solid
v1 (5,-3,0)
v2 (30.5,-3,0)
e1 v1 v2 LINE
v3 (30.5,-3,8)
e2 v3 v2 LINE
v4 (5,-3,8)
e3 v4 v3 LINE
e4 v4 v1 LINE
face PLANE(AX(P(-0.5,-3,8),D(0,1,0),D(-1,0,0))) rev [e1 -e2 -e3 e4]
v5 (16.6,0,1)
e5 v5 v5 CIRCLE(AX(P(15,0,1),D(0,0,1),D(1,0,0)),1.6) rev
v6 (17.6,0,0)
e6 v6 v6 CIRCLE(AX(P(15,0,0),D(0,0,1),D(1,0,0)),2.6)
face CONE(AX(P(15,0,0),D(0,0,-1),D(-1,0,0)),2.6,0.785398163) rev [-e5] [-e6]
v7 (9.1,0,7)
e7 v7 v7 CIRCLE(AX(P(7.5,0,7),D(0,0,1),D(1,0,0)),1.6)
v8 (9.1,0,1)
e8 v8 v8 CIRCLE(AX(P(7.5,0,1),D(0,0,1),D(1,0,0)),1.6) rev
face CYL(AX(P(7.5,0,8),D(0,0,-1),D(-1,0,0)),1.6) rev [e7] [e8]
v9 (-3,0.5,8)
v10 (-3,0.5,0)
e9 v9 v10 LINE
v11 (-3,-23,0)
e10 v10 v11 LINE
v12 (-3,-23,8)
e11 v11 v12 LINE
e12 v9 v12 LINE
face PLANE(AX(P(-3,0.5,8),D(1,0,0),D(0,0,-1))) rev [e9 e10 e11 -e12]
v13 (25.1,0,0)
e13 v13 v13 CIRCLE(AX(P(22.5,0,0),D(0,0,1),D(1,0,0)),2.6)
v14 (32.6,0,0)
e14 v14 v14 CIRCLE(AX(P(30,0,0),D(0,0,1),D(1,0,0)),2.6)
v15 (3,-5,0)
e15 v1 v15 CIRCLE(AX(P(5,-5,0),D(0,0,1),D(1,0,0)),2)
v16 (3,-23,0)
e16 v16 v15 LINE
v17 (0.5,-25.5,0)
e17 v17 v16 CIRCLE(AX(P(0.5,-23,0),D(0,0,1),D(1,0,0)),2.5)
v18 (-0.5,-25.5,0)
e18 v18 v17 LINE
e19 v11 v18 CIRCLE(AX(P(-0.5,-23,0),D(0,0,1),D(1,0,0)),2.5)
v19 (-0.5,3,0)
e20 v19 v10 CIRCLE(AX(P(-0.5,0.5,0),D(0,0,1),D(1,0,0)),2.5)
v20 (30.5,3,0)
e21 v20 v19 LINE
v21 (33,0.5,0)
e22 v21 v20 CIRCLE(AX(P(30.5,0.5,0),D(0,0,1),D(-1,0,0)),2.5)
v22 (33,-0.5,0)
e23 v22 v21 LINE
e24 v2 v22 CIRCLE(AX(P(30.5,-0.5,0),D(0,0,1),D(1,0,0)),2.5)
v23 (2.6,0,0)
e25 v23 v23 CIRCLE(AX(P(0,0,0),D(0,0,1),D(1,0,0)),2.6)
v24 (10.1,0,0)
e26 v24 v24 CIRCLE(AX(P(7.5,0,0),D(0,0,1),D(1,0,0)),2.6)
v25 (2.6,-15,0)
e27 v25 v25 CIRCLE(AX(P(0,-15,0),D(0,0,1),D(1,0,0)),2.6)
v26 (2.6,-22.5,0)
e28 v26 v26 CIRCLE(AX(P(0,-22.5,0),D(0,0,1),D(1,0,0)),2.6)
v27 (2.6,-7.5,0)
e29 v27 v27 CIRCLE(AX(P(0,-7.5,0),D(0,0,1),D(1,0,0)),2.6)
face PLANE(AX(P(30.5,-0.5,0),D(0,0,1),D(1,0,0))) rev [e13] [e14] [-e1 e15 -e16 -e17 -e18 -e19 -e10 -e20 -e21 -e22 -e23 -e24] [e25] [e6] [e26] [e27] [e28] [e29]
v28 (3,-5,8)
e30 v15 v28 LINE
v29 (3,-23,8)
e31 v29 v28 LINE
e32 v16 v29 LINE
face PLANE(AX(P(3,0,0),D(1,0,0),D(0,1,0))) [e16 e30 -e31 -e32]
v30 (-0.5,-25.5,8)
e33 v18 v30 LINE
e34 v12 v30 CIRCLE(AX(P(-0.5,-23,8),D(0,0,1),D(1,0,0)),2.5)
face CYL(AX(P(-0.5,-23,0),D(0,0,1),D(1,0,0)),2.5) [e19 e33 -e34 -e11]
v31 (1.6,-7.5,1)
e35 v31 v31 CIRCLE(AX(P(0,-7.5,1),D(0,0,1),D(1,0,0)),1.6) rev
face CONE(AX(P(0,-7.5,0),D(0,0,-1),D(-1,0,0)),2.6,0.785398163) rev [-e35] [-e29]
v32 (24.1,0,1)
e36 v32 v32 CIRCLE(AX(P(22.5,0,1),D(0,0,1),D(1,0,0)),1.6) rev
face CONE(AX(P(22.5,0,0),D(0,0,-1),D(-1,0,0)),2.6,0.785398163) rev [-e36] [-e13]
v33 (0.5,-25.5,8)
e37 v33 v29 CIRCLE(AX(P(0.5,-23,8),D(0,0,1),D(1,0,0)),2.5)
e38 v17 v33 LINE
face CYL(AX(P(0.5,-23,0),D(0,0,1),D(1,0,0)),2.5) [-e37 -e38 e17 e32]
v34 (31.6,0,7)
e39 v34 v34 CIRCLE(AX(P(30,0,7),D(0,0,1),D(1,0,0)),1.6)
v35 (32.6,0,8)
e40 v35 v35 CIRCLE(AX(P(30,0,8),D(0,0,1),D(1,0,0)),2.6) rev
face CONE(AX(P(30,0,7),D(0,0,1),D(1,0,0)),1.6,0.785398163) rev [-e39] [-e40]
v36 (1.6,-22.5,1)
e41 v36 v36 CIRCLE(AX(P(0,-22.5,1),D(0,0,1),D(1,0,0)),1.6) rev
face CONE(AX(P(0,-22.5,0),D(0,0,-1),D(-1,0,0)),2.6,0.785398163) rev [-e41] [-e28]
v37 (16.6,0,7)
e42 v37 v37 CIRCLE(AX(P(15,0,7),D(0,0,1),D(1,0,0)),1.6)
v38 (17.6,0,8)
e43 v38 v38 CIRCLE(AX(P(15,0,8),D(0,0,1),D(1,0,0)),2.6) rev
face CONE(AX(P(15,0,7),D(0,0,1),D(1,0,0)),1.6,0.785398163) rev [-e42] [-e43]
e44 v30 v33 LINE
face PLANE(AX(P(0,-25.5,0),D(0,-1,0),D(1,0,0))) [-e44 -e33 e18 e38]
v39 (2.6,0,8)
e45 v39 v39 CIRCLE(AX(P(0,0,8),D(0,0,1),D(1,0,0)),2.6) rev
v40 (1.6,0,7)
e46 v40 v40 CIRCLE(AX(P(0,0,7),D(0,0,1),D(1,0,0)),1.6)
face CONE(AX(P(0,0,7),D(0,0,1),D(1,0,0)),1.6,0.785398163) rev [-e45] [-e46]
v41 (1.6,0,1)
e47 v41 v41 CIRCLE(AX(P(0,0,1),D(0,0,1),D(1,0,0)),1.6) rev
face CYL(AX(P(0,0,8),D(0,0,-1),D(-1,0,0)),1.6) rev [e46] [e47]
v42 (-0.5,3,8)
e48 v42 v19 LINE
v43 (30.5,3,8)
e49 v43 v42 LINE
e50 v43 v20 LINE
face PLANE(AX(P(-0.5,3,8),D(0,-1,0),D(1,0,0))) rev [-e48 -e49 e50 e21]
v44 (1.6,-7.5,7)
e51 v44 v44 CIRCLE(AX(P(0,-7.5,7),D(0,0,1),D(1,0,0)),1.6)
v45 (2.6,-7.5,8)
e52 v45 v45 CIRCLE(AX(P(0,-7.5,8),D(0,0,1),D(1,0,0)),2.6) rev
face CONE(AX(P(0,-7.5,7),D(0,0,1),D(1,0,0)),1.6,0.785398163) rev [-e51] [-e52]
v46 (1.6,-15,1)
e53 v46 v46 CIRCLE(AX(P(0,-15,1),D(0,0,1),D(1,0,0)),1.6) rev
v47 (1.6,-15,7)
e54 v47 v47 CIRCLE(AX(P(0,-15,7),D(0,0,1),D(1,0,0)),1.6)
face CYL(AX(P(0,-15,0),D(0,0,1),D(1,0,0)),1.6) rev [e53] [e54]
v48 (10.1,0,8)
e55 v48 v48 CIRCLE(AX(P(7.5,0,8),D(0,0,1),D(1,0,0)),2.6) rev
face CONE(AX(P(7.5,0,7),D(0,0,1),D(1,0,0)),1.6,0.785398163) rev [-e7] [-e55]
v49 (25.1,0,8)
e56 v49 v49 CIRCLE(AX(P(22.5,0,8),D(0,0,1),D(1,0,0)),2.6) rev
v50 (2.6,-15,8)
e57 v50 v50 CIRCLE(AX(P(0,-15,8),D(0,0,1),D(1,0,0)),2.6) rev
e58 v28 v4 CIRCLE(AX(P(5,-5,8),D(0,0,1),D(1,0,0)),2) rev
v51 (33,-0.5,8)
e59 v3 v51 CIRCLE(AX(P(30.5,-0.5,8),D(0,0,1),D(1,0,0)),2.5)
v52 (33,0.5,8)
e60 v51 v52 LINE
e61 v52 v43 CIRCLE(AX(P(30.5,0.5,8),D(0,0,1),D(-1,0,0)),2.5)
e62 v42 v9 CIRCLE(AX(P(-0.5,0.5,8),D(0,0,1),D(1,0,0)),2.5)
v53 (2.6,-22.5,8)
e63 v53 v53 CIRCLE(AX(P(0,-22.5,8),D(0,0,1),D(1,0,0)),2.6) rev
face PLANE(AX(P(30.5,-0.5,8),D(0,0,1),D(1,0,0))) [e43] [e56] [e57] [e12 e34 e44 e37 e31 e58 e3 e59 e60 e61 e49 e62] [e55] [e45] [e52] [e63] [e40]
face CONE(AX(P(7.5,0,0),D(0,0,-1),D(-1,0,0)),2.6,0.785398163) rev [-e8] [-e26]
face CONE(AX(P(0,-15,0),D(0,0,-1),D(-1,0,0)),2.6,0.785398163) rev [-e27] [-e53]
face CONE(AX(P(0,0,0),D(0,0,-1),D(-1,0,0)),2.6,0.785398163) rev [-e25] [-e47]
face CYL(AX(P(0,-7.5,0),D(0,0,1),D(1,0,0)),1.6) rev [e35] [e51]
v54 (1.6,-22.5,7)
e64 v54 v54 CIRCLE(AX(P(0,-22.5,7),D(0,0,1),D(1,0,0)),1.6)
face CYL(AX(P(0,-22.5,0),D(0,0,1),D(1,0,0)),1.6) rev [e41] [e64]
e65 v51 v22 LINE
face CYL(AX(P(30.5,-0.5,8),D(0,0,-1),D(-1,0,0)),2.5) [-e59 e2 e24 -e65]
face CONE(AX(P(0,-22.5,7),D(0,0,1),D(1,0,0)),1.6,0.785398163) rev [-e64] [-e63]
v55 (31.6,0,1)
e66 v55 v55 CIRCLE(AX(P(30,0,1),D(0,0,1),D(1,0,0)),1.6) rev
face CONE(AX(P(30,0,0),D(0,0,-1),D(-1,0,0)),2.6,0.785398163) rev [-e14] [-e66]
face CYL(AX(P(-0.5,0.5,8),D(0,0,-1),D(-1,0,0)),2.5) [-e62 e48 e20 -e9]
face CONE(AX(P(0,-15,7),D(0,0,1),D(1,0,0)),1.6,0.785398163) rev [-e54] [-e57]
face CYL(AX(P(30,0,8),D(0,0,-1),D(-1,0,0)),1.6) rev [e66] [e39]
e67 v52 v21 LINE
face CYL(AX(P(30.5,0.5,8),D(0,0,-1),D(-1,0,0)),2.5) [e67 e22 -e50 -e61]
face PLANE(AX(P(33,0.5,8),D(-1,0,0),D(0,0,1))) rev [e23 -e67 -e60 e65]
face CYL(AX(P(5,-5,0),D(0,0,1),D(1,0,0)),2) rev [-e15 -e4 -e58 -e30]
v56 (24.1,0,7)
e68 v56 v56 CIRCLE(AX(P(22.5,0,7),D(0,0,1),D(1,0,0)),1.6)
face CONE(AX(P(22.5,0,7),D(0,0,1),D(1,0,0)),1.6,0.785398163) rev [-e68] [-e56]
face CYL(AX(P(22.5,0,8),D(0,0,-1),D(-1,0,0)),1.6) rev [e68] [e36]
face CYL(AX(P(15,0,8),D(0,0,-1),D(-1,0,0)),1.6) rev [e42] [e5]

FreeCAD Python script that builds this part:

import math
import FreeCAD as App
import Part
import Sketcher
Q = App.Units.Quantity


def edges_at(feature, points):
    """Names of the edges that pass closest to the given points."""
    edges = feature.Shape.Edges
    near = lambda p: min(range(len(edges)), key=lambda i: edges[i].distToShape(Part.Vertex(*p))[0])
    return sorted({f"Edge{near(p) + 1}" for p in points})

doc = App.newDocument("Part")
params = doc.addObject("Spreadsheet::Sheet", "Params")
for row, (alias, value) in enumerate([
    ("sketch1_diameter", "3.2 mm"),
    ("sketch1_radius", "2.5 mm"),
    ("sketch1_width", "31 mm"),
    ("sketch1_height", "1 mm"),
    ("pad1_length", "8 mm"),
    ("chamfer_size", "1 mm"),
    ("sketch2_diameter", "3.2 mm"),
    ("sketch2_radius", "2.5 mm"),
    ("sketch2_width", "1 mm"),
    ("sketch2_height", "20 mm"),
    ("pad2_length", "8 mm"),
    ("fillet_radius", "2 mm"),
    ("chamfer2_size", "1 mm"),
], start=1):
    params.set(f"A{row}", alias)
    params.set(f"B{row}", "=" + value)
    params.setAlias(f"B{row}", alias)

body = doc.addObject("PartDesign::Body", "Body")

sketch1 = body.newObject("Sketcher::SketchObject", "Sketch")
sketch1.AttachmentSupport = (doc.getObject("XY_Plane"), [""])
sketch1.MapMode = "FlatFace"
sketch1.addGeometry([
    Part.LineSegment(App.Vector(30.5, 3, 0), App.Vector(-0.5, 3, 0)),
    Part.ArcOfCircle(Part.Circle(App.Vector(-0.5, 0.5, 0), App.Vector(0, 0, 1), 2.5), math.radians(90), math.radians(180)),
    Part.LineSegment(App.Vector(-3, 0.5, 0), App.Vector(-3, -0.5, 0)),
    Part.ArcOfCircle(Part.Circle(App.Vector(-0.5, -0.5, 0), App.Vector(0, 0, 1), 2.5), math.radians(180), math.radians(270)),
    Part.LineSegment(App.Vector(-0.5, -3, 0), App.Vector(30.5, -3, 0)),
    Part.ArcOfCircle(Part.Circle(App.Vector(30.5, -0.5, 0), App.Vector(0, 0, 1), 2.5), math.radians(-90), math.radians(0)),
    Part.LineSegment(App.Vector(33, -0.5, 0), App.Vector(33, 0.5, 0)),
    Part.ArcOfCircle(Part.Circle(App.Vector(30.5, 0.5, 0), App.Vector(0, 0, 1), 2.5), math.radians(0), math.radians(90)),
    Part.Circle(App.Vector(30, 0, 0), App.Vector(0, 0, 1), 1.6),
    Part.Circle(App.Vector(22.5, 0, 0), App.Vector(0, 0, 1), 1.6),
    Part.Circle(App.Vector(15, 0, 0), App.Vector(0, 0, 1), 1.6),
    Part.Circle(App.Vector(7.5, 0, 0), App.Vector(0, 0, 1), 1.6),
    Part.Circle(App.Vector(0, 0, 0), App.Vector(0, 0, 1), 1.6),
], False)
sketch1.addConstraint([
    Sketcher.Constraint("Tangent", 0, 2, 1, 1),
    Sketcher.Constraint("Tangent", 1, 2, 2, 1),
    Sketcher.Constraint("Tangent", 2, 2, 3, 1),
    Sketcher.Constraint("Tangent", 3, 2, 4, 1),
    Sketcher.Constraint("Tangent", 4, 2, 5, 1),
    Sketcher.Constraint("Tangent", 5, 2, 6, 1),
    Sketcher.Constraint("Tangent", 6, 2, 7, 1),
    Sketcher.Constraint("Tangent", 7, 2, 0, 1),
    Sketcher.Constraint("Horizontal", 0),
    Sketcher.Constraint("Vertical", 2),
    Sketcher.Constraint("Horizontal", 4),
    Sketcher.Constraint("Vertical", 6),
    Sketcher.Constraint("Coincident", 12, 3, -1, 1),
    Sketcher.Constraint("Equal", 1, 3),
    Sketcher.Constraint("Equal", 3, 5),
    Sketcher.Constraint("Equal", 5, 7),
    Sketcher.Constraint("Equal", 8, 9),
    Sketcher.Constraint("Equal", 9, 10),
    Sketcher.Constraint("Equal", 10, 11),
    Sketcher.Constraint("Equal", 11, 12),
    Sketcher.Constraint("PointOnObject", 8, 3, -1),
    Sketcher.Constraint("PointOnObject", 9, 3, -1),
    Sketcher.Constraint("PointOnObject", 10, 3, -1),
    Sketcher.Constraint("PointOnObject", 11, 3, -1),
    Sketcher.Constraint("Diameter", 8, Q("3.2 mm")),
    Sketcher.Constraint("Radius", 1, Q("2.5 mm")),
    Sketcher.Constraint("DistanceX", 0, 2, 0, 1, Q("31 mm")),
    Sketcher.Constraint("DistanceY", 2, 2, 2, 1, Q("1 mm")),
    Sketcher.Constraint("DistanceX", -1, 1, 8, 3, Q("30 mm")),
    Sketcher.Constraint("DistanceX", -1, 1, 10, 3, Q("15 mm")),
    Sketcher.Constraint("DistanceY", -1, 1, 0, 2, Q("3 mm")),
    Sketcher.Constraint("DistanceX", 1, 2, -1, 1, Q("3 mm")),
    Sketcher.Constraint("DistanceX", 9, 3, 5, 3, Q("8 mm")),
    Sketcher.Constraint("DistanceX", 1, 3, 11, 3, Q("8 mm")),
])
sketch1.setExpression("Constraints[24]", "Params.sketch1_diameter")
sketch1.setExpression("Constraints[25]", "Params.sketch1_radius")
sketch1.setExpression("Constraints[26]", "Params.sketch1_width")
sketch1.setExpression("Constraints[27]", "Params.sketch1_height")
pad1 = body.newObject("PartDesign::Pad", "Pad")
pad1.Profile = sketch1
pad1.setExpression("Length", "Params.pad1_length")
doc.recompute()

chamfer = body.newObject("PartDesign::Chamfer", "Chamfer")
chamfer.Base = (pad1, edges_at(pad1, [
    (-1.6, 0, 0),
    (-1.6, 0, 8),
    (5.9, 0, 0),
    (5.9, 0, 8),
    (13.4, 0, 0),
    (13.4, 0, 8),
    (20.9, 0, 0),
    (20.9, 0, 8),
    (28.4, 0, 0),
    (28.4, 0, 8),
]))
chamfer.setExpression("Size", "Params.chamfer_size")

sketch2 = body.newObject("Sketcher::SketchObject", "Sketch001")
sketch2.AttachmentSupport = (doc.getObject("XY_Plane"), [""])
sketch2.MapMode = "FlatFace"
sketch2.AttachmentOffset = App.Placement(App.Vector(0, 0, 8), App.Rotation())
sketch2.addGeometry([
    Part.ArcOfCircle(Part.Circle(App.Vector(-0.5, -0.5, 0), App.Vector(0, 0, 1), 2.5), math.radians(180), math.radians(270)),
    Part.LineSegment(App.Vector(-3, -0.5, 0), App.Vector(-3, -23, 0)),
    Part.ArcOfCircle(Part.Circle(App.Vector(-0.5, -23, 0), App.Vector(0, 0, 1), 2.5), math.radians(180), math.radians(270)),
    Part.LineSegment(App.Vector(-0.5, -25.5, 0), App.Vector(0.5, -25.5, 0)),
    Part.ArcOfCircle(Part.Circle(App.Vector(0.5, -23, 0), App.Vector(0, 0, 1), 2.5), math.radians(-90), math.radians(0)),
    Part.LineSegment(App.Vector(3, -23, 0), App.Vector(3, -3, 0)),
    Part.LineSegment(App.Vector(3, -3, 0), App.Vector(-0.5, -3, 0)),
    Part.Circle(App.Vector(0, -22.5, 0), App.Vector(0, 0, 1), 1.6),
    Part.Circle(App.Vector(0, -15, 0), App.Vector(0, 0, 1), 1.6),
    Part.Circle(App.Vector(0, -7.5, 0), App.Vector(0, 0, 1), 1.6),
], False)
sketch2.addConstraint([
    Sketcher.Constraint("Tangent", 0, 1, 1, 1),
    Sketcher.Constraint("Tangent", 1, 2, 2, 1),
    Sketcher.Constraint("Tangent", 2, 2, 3, 1),
    Sketcher.Constraint("Tangent", 3, 2, 4, 1),
    Sketcher.Constraint("Tangent", 4, 2, 5, 1),
    Sketcher.Constraint("Coincident", 5, 2, 6, 1),
    Sketcher.Constraint("Tangent", 6, 2, 0, 2),
    Sketcher.Constraint("Vertical", 1),
    Sketcher.Constraint("Horizontal", 3),
    Sketcher.Constraint("Vertical", 5),
    Sketcher.Constraint("Horizontal", 6),
    Sketcher.Constraint("Equal", 0, 2),
    Sketcher.Constraint("Equal", 2, 4),
    Sketcher.Constraint("Equal", 7, 8),
    Sketcher.Constraint("Equal", 8, 9),
    Sketcher.Constraint("PointOnObject", 7, 3, -2),
    Sketcher.Constraint("PointOnObject", 8, 3, -2),
    Sketcher.Constraint("PointOnObject", 9, 3, -2),
    Sketcher.Constraint("Diameter", 7, Q("3.2 mm")),
    Sketcher.Constraint("Radius", 0, Q("2.5 mm")),
    Sketcher.Constraint("DistanceX", 3, 1, 3, 2, Q("1 mm")),
    Sketcher.Constraint("DistanceY", 5, 1, 5, 2, Q("20 mm")),
    Sketcher.Constraint("DistanceY", 2, 3, -1, 1, Q("23 mm")),
    Sketcher.Constraint("DistanceY", 8, 3, -1, 1, Q("15 mm")),
    Sketcher.Constraint("DistanceX", 0, 1, -1, 1, Q("3 mm")),
    Sketcher.Constraint("DistanceY", 7, 3, 0, 3, Q("22 mm")),
    Sketcher.Constraint("DistanceY", 9, 3, 0, 3, Q("7 mm")),
])
sketch2.setExpression("Constraints[18]", "Params.sketch2_diameter")
sketch2.setExpression("Constraints[19]", "Params.sketch2_radius")
sketch2.setExpression("Constraints[20]", "Params.sketch2_width")
sketch2.setExpression("Constraints[21]", "Params.sketch2_height")
pad2 = body.newObject("PartDesign::Pad", "Pad001")
pad2.Profile = sketch2
pad2.setExpression("Length", "Params.pad2_length")
pad2.Reversed = True
doc.recompute()

fillet = body.newObject("PartDesign::Fillet", "Fillet")
fillet.Base = (pad2, edges_at(pad2, [(3, -3, 4)]))
fillet.setExpression("Radius", "Params.fillet_radius")
doc.recompute()

chamfer2 = body.newObject("PartDesign::Chamfer", "Chamfer001")
chamfer2.Base = (fillet, edges_at(fillet, [
    (-1.6, -7.5, 8),
    (-1.6, -15, 8),
    (-1.6, -22.5, 8),
    (-1.6, -22.5, 0),
    (-1.6, -15, 0),
    (-1.6, -7.5, 0),
]))
chamfer2.setExpression("Size", "Params.chamfer2_size")

doc.recompute()
